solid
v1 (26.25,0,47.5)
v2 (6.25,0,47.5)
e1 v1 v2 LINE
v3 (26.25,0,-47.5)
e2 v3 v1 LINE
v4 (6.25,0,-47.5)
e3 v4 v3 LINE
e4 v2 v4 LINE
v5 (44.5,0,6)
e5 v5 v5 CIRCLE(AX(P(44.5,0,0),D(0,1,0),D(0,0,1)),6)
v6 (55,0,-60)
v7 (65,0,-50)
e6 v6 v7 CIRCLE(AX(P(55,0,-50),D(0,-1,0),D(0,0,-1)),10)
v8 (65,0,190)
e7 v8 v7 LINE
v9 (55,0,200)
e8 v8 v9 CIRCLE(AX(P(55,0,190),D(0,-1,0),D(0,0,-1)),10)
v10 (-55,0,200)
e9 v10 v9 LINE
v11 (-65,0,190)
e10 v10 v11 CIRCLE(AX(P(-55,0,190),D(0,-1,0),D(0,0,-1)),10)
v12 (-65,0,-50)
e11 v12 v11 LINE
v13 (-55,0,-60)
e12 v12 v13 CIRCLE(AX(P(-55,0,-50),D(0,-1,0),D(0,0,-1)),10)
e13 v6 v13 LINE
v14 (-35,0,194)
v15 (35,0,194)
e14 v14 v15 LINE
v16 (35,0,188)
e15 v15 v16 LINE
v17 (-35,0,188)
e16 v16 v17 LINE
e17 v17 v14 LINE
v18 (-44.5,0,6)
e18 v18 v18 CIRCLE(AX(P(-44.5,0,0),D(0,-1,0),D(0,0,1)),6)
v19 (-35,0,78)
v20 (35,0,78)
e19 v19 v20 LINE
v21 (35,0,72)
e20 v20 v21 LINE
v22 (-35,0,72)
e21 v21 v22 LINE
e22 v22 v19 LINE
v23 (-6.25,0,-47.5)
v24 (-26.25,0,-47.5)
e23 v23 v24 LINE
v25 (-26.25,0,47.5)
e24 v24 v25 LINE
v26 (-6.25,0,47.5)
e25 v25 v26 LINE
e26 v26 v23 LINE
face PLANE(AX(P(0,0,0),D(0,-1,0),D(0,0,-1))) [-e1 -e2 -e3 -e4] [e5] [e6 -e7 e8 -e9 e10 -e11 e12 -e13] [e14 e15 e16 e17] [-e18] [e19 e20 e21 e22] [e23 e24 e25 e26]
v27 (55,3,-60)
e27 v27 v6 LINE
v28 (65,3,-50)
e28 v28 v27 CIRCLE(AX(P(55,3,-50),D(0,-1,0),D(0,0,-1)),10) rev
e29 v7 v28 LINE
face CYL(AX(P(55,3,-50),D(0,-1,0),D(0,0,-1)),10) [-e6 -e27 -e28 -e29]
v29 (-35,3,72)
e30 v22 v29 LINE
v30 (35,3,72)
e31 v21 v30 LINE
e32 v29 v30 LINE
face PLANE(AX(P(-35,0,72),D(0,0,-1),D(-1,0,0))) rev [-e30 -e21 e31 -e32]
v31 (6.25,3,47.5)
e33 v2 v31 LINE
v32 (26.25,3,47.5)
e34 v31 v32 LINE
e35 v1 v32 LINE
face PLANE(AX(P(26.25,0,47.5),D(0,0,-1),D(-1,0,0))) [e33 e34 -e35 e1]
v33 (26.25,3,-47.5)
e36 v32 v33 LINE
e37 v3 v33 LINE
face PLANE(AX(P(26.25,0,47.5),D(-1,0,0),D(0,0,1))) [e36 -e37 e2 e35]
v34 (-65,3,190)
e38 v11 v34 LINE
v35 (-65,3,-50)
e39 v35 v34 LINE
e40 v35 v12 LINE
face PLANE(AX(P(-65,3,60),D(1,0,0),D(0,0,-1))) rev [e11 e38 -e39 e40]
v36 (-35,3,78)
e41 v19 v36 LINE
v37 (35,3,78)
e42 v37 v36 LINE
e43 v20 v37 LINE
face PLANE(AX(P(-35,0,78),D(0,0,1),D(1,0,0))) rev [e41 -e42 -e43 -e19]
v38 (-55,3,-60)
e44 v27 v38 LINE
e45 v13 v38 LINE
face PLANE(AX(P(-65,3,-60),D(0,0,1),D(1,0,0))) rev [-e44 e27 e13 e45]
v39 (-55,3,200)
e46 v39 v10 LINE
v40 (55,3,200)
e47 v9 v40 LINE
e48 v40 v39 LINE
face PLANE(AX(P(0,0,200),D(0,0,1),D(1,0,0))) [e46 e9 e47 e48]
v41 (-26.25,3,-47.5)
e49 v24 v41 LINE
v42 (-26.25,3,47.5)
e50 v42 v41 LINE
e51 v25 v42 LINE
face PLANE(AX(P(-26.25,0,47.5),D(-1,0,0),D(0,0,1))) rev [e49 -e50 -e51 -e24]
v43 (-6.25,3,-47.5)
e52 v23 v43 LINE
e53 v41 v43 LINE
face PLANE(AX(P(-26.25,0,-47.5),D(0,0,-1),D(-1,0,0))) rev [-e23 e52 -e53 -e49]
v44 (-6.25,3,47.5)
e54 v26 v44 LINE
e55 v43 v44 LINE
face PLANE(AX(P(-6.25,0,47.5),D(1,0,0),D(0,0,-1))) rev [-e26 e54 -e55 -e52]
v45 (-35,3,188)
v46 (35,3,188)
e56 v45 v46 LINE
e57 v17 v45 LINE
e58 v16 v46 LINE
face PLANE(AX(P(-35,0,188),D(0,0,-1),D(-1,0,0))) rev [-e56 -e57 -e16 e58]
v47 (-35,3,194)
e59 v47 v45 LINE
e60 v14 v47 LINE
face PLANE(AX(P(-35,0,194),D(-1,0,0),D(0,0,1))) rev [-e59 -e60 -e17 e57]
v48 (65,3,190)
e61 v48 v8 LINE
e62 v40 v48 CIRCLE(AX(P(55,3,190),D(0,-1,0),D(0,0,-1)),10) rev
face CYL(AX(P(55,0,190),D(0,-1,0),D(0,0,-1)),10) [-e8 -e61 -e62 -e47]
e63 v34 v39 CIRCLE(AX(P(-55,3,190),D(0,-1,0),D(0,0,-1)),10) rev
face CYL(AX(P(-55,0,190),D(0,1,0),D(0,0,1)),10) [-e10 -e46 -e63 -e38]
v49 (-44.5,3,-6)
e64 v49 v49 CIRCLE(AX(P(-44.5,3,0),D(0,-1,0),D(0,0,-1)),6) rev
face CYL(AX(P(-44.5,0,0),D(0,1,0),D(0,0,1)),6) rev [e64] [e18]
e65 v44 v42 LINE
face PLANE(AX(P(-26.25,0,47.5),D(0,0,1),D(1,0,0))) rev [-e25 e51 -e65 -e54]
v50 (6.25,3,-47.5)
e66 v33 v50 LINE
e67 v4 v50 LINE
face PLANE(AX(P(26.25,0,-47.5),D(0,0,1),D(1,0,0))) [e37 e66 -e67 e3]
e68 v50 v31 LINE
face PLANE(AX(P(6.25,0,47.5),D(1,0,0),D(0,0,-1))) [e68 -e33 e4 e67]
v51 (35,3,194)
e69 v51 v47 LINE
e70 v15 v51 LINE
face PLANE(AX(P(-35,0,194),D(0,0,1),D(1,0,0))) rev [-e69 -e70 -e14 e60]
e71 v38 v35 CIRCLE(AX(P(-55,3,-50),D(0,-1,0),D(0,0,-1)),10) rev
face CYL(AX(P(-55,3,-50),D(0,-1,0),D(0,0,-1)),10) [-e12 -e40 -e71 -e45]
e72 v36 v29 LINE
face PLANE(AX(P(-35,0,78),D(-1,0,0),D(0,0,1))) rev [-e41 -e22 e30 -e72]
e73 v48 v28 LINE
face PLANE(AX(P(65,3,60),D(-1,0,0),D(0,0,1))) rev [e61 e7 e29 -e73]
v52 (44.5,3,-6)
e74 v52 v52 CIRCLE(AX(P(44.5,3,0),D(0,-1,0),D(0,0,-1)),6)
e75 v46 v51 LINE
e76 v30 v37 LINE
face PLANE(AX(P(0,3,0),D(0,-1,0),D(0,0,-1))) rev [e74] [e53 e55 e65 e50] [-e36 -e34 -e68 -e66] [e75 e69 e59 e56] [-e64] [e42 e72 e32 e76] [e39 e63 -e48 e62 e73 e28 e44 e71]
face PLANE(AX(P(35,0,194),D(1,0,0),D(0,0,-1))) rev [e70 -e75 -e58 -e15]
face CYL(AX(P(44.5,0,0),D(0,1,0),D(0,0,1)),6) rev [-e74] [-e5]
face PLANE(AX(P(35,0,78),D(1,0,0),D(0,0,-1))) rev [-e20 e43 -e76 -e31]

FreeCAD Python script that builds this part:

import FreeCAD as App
import Part
import Sketcher
Q = App.Units.Quantity


def edges_at(feature, points):
    """Names of the edges that pass closest to the given points."""
    edges = feature.Shape.Edges
    near = lambda p: min(range(len(edges)), key=lambda i: edges[i].distToShape(Part.Vertex(*p))[0])
    return sorted({f"Edge{near(p) + 1}" for p in points})


def add_polygon(sketch, points):
    """Adds a closed chain of lines whose ends are joined by coincident constraints."""
    first, n = sketch.GeometryCount, len(points)
    for a, b in zip(points, points[1:] + points[:1]):
        sketch.addGeometry(Part.LineSegment(App.Vector(*a, 0), App.Vector(*b, 0)), False)
    for i in range(n):
        sketch.addConstraint(Sketcher.Constraint("Coincident", first + i, 2, first + (i + 1) % n, 1))

doc = App.newDocument("Part")
body = doc.addObject("PartDesign::Body", "Body")

# Sketch on XZ plane
sketch1 = doc.addObject("Sketcher::SketchObject", "Sketch")
body.addObject(sketch1)
sketch1.AttachmentSupport = (doc.XZ_Plane, [""])
sketch1.MapMode = "FlatFace"
add_polygon(sketch1, [(-65, -60), (-65, 60), (65, 60), (65, -60)])  # lines 0-3
sketch1.addConstraint(Sketcher.Constraint("Vertical", 0))
sketch1.addConstraint(Sketcher.Constraint("Horizontal", 1))
sketch1.addConstraint(Sketcher.Constraint("Vertical", 2))
sketch1.addConstraint(Sketcher.Constraint("Horizontal", 3))
sketch1.addConstraint(Sketcher.Constraint("Symmetric", 0, 2, 2, 2, -1, 1))
sketch1.addConstraint(Sketcher.Constraint("DistanceX", 1, 1, 1, 2, Q("130 mm")))
sketch1.addConstraint(Sketcher.Constraint("DistanceY", 0, 1, 0, 2, Q("120 mm")))
pad1 = doc.addObject("PartDesign::Pad", "Pad")
body.addObject(pad1)
pad1.Profile = sketch1
pad1.Length = 3
pad1.Reversed = True

# Sketch on XZ plane
sketch2 = doc.addObject("Sketcher::SketchObject", "Sketch001")
body.addObject(sketch2)
sketch2.AttachmentSupport = (doc.XZ_Plane, [""])
sketch2.MapMode = "FlatFace"
sketch2.AttachmentOffset = App.Placement(App.Vector(0, 0, 1), App.Rotation())
add_polygon(sketch2, [(-26, -48), (-26, 48), (-6, 48), (-6, -48)])  # lines 0-3
sketch2.addConstraint(Sketcher.Constraint("Vertical", 0))
sketch2.addConstraint(Sketcher.Constraint("Horizontal", 1))
sketch2.addConstraint(Sketcher.Constraint("Vertical", 2))
sketch2.addConstraint(Sketcher.Constraint("Horizontal", 3))
sketch2.addConstraint(Sketcher.Constraint("DistanceX", 1, 1, 1, 2, Q("20 mm")))
sketch2.addConstraint(Sketcher.Constraint("DistanceY", 0, 1, 0, 2, Q("95 mm")))
sketch2.addConstraint(Sketcher.Constraint("DistanceY", -1, 1, 0, 2, Q("47.5 mm")))
sketch2.addConstraint(Sketcher.Constraint("DistanceX", 0, 2, -1, 1, Q("26.25 mm")))
pocket1 = doc.addObject("PartDesign::Pocket", "Pocket")
body.addObject(pocket1)
pocket1.Profile = sketch2
pocket1.Length = 5
doc.recompute()

mirrored = doc.addObject("PartDesign::Mirrored", "Mirrored")
body.addObject(mirrored)
mirrored.Originals = [pocket1]
mirrored.MirrorPlane = (doc.YZ_Plane, [""])
body.Tip = mirrored

# Sketch on XZ plane
sketch3 = doc.addObject("Sketcher::SketchObject", "Sketch002")
body.addObject(sketch3)
sketch3.AttachmentSupport = (doc.XZ_Plane, [""])
sketch3.MapMode = "FlatFace"
sketch3.AttachmentOffset = App.Placement(App.Vector(0, 0, 1), App.Rotation())
sketch3.addGeometry(Part.Circle(App.Vector(44, 0, 0), App.Vector(0, 0, 1), 6), False)
sketch3.addConstraint(Sketcher.Constraint("PointOnObject", 0, 3, -1))
sketch3.addConstraint(Sketcher.Constraint("Diameter", 0, Q("12 mm")))
sketch3.addConstraint(Sketcher.Constraint("DistanceX", -1, 1, 0, 3, Q("44.5 mm")))
pocket2 = doc.addObject("PartDesign::Pocket", "Pocket001")
body.addObject(pocket2)
pocket2.Profile = sketch3
pocket2.Length = 5
doc.recompute()

mirrored2 = doc.addObject("PartDesign::Mirrored", "Mirrored001")
body.addObject(mirrored2)
mirrored2.Originals = [pocket2]
mirrored2.MirrorPlane = (doc.YZ_Plane, [""])
body.Tip = mirrored2

# Sketch on XY plane
sketch4 = doc.addObject("Sketcher::SketchObject", "Sketch003")
body.addObject(sketch4)
sketch4.AttachmentSupport = (doc.XY_Plane, [""])
sketch4.MapMode = "FlatFace"
sketch4.AttachmentOffset = App.Placement(App.Vector(0, 0, 60), App.Rotation())
add_polygon(sketch4, [(-65, 3), (-65, 0), (65, 0), (65, 3)])  # lines 0-3
sketch4.addConstraint(Sketcher.Constraint("Vertical", 0))
sketch4.addConstraint(Sketcher.Constraint("Horizontal", 1))
sketch4.addConstraint(Sketcher.Constraint("Vertical", 2))
sketch4.addConstraint(Sketcher.Constraint("Horizontal", 3))
sketch4.addConstraint(Sketcher.Constraint("Symmetric", 0, 2, 1, 2, -1, 1))
sketch4.addConstraint(Sketcher.Constraint("DistanceX", 1, 1, 1, 2, Q("130 mm")))
sketch4.addConstraint(Sketcher.Constraint("DistanceY", 0, 2, 0, 1, Q("3 mm")))
pad2 = doc.addObject("PartDesign::Pad", "Pad001")
body.addObject(pad2)
pad2.Profile = sketch4
pad2.Length = 140

# Sketch on XZ plane
sketch5 = doc.addObject("Sketcher::SketchObject", "Sketch004")
body.addObject(sketch5)
sketch5.AttachmentSupport = (doc.XZ_Plane, [""])
sketch5.MapMode = "FlatFace"
sketch5.AttachmentOffset = App.Placement(App.Vector(0, 0, -3), App.Rotation())
add_polygon(sketch5, [(-35, 72), (-35, 78), (35, 78), (35, 72)])  # lines 0-3
add_polygon(sketch5, [(-35, 188), (-35, 194), (35, 194), (35, 188)])  # lines 4-7
sketch5.addConstraint(Sketcher.Constraint("Vertical", 0))
sketch5.addConstraint(Sketcher.Constraint("Horizontal", 1))
sketch5.addConstraint(Sketcher.Constraint("Vertical", 2))
sketch5.addConstraint(Sketcher.Constraint("Horizontal", 3))
sketch5.addConstraint(Sketcher.Constraint("Vertical", 4))
sketch5.addConstraint(Sketcher.Constraint("Horizontal", 5))
sketch5.addConstraint(Sketcher.Constraint("Vertical", 6))
sketch5.addConstraint(Sketcher.Constraint("Horizontal", 7))
sketch5.addConstraint(Sketcher.Constraint("Vertical", 3, 2, 4, 2))
sketch5.addConstraint(Sketcher.Constraint("Vertical", 2, 2, 5, 2))
sketch5.addConstraint(Sketcher.Constraint("Equal", 2, 4))
sketch5.addConstraint(Sketcher.Constraint("DistanceX", 1, 1, 1, 2, Q("70 mm")))
sketch5.addConstraint(Sketcher.Constraint("DistanceY", 0, 1, 0, 2, Q("6 mm")))
sketch5.addConstraint(Sketcher.Constraint("DistanceX", 0, 2, -1, 1, Q("35 mm")))
sketch5.addConstraint(Sketcher.Constraint("DistanceY", -1, 1, 0, 2, Q("78 mm")))
sketch5.addConstraint(Sketcher.Constraint("DistanceY", -1, 1, 4, 2, Q("194 mm")))
pocket3 = doc.addObject("PartDesign::Pocket", "Pocket002")
body.addObject(pocket3)
pocket3.Profile = sketch5
pocket3.Type = "ThroughAll"
pocket3.Midplane = True
doc.recompute()

fillet = doc.addObject("PartDesign::Fillet", "Fillet")
body.addObject(fillet)
fillet.Base = (pocket3, edges_at(pocket3, [
    (-65, 1.5, 200),
    (65, 1.5, 200),
    (-65, 1.5, -60),
    (65, 1.5, -60),
]))
fillet.Radius = 10

doc.recompute()
